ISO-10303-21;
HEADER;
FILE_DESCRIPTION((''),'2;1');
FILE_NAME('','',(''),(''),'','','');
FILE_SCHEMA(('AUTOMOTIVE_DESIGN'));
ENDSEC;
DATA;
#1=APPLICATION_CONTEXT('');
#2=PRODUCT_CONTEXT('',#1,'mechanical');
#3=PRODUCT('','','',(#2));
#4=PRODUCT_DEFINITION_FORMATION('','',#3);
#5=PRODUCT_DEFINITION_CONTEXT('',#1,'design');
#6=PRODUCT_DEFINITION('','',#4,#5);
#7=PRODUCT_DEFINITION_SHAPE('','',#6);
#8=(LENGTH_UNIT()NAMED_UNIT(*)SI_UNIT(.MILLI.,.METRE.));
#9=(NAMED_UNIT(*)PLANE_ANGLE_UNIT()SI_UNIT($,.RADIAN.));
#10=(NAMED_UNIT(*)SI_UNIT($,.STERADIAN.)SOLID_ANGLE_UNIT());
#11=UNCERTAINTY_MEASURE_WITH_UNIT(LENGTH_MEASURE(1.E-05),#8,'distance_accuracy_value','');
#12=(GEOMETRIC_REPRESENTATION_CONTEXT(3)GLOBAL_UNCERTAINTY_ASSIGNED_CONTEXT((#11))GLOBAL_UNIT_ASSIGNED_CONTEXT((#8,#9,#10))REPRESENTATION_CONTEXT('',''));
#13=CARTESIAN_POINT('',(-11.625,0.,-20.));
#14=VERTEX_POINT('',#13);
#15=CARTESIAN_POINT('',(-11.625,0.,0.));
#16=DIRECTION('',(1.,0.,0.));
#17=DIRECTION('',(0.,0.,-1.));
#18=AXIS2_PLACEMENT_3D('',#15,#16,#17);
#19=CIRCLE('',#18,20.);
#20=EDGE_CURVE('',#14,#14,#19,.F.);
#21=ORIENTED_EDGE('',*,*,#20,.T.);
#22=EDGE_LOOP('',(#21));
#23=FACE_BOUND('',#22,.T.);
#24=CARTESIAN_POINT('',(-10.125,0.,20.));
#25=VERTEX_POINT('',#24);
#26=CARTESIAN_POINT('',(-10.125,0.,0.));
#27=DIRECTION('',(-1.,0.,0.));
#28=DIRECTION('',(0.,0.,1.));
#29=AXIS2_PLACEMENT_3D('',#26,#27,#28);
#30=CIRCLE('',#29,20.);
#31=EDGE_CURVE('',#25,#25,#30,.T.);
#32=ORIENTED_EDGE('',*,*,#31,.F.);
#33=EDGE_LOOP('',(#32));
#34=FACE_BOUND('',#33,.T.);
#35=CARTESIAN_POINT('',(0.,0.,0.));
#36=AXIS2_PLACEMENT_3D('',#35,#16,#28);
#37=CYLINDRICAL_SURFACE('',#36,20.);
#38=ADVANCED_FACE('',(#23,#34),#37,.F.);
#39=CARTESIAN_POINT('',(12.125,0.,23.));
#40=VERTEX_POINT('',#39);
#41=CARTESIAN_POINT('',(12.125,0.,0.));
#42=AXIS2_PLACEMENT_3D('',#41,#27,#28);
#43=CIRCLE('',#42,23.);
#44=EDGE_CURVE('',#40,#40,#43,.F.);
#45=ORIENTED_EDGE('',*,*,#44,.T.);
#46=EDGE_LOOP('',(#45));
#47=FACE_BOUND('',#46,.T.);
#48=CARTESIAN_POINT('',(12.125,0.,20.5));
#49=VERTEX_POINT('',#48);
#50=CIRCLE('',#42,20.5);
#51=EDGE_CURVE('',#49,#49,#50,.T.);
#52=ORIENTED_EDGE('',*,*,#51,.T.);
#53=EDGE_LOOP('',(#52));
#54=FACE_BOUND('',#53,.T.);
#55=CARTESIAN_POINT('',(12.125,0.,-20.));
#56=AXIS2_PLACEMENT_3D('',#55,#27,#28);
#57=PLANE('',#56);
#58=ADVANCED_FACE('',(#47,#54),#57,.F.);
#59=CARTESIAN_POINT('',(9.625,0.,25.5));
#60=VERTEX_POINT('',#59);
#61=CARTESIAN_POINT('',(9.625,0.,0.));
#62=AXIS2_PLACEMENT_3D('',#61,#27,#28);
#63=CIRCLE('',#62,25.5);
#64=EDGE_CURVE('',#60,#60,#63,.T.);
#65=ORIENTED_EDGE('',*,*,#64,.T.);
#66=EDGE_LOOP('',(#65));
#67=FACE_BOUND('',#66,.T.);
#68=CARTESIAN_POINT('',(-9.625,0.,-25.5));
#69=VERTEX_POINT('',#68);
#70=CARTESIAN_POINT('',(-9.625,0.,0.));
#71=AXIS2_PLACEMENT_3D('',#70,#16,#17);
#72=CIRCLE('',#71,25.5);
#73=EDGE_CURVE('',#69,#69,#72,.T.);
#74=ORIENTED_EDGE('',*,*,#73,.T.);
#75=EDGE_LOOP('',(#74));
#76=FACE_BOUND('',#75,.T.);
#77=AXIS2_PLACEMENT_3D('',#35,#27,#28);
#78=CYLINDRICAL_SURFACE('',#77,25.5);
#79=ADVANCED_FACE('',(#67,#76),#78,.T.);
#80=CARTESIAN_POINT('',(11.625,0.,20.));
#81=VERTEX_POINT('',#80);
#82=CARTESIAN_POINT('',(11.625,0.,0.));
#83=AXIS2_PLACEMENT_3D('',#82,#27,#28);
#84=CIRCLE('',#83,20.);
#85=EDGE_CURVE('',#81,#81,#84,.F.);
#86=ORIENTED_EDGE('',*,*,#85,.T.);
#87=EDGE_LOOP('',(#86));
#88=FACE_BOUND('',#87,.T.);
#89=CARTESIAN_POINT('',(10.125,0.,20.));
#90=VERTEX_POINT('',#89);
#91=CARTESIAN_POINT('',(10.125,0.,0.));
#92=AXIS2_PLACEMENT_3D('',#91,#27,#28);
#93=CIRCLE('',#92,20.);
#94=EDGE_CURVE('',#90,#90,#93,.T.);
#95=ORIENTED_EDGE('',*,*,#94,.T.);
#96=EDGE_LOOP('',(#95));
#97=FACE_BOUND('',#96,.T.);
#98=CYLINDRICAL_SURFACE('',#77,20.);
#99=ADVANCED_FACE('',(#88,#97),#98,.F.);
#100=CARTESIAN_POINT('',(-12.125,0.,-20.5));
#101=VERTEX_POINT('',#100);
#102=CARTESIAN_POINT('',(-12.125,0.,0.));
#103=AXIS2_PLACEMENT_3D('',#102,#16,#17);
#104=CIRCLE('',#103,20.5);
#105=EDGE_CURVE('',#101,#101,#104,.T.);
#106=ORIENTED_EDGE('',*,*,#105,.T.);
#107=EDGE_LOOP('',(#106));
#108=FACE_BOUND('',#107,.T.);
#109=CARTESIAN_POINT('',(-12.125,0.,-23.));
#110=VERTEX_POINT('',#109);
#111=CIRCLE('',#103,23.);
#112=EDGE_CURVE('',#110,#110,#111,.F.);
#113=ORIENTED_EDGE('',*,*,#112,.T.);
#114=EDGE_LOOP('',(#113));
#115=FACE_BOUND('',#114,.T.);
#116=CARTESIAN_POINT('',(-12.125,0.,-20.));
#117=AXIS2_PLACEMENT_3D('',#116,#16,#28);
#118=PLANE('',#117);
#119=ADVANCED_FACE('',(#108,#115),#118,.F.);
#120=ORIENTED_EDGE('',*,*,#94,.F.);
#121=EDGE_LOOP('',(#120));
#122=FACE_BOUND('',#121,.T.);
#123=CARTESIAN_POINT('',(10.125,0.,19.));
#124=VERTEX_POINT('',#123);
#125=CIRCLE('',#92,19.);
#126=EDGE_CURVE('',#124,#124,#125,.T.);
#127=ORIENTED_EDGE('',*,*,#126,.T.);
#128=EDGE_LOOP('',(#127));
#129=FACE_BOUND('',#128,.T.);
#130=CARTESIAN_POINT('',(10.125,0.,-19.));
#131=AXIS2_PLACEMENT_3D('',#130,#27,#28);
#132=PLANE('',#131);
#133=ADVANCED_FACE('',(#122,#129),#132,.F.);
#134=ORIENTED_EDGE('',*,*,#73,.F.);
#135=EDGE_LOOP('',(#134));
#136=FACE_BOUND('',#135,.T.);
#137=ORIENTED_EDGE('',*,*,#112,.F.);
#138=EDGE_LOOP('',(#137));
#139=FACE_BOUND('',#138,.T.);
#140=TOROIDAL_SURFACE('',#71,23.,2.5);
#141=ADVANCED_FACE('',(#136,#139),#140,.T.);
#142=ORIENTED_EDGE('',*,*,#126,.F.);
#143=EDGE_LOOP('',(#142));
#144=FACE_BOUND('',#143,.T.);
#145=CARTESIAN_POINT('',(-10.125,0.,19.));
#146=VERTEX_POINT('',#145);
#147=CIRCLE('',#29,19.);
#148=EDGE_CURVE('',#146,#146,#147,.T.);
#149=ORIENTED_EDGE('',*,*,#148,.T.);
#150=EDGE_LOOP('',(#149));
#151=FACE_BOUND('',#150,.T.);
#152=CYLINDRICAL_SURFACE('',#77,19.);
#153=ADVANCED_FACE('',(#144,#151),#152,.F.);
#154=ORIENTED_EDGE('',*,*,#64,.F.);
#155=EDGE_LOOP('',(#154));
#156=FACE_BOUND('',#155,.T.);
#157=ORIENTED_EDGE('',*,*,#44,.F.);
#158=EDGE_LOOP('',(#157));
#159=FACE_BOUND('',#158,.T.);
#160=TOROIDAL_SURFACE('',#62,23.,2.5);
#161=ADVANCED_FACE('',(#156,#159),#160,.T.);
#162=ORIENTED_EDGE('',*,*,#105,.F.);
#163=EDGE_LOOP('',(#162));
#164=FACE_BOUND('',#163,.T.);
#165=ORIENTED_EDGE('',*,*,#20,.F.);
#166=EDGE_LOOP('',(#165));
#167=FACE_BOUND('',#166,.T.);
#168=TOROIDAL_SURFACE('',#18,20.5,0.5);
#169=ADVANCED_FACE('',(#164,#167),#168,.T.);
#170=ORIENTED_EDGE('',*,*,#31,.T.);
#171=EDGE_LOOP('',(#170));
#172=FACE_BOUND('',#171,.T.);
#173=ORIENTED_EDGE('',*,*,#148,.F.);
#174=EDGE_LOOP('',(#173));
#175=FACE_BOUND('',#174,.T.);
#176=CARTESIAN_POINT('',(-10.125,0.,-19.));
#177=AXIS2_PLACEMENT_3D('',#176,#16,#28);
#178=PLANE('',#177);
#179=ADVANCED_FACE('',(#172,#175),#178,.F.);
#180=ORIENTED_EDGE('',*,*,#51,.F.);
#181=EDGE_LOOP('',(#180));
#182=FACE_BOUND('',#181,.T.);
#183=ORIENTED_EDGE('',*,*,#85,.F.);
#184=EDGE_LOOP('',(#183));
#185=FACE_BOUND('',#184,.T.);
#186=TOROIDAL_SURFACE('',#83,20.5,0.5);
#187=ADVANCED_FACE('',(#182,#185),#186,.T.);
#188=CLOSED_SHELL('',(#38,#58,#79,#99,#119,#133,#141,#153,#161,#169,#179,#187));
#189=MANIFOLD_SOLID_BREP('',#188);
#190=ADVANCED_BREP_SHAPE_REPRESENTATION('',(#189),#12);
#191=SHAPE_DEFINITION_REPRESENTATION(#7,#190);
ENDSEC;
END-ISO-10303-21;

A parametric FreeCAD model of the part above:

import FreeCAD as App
import Part
import Sketcher


def edges_at(feature, points):
    """Names of the edges that pass closest to the given points."""
    edges = feature.Shape.Edges
    near = lambda p: min(range(len(edges)), key=lambda i: edges[i].distToShape(Part.Vertex(*p))[0])
    return sorted({f"Edge{near(p) + 1}" for p in points})


def add_polygon(sketch, points):
    """Adds a closed chain of lines whose ends are joined by coincident constraints."""
    first, n = sketch.GeometryCount, len(points)
    for a, b in zip(points, points[1:] + points[:1]):
        sketch.addGeometry(Part.LineSegment(App.Vector(*a, 0), App.Vector(*b, 0)), False)
    for i in range(n):
        sketch.addConstraint(Sketcher.Constraint("Coincident", first + i, 2, first + (i + 1) % n, 1))

doc = App.newDocument("Part")
params = doc.addObject("Spreadsheet::Sheet", "Params")
for row, (alias, value) in enumerate([
    ("sketch1_width", "2 mm"),
    ("sketch1_height", "1 mm"),
    ("sketch1_height2", "5.5 mm"),
    ("revolution_angle", "360 deg"),
    ("fillet_radius", "2.5 mm"),
    ("fillet2_radius", "0.5 mm"),
], start=1):
    params.set(f"A{row}", alias)
    params.set(f"B{row}", "=" + value)
    params.setAlias(f"B{row}", alias)

body = doc.addObject("PartDesign::Body", "Body")

# Sketch on XZ plane
sketch1 = doc.addObject("Sketcher::SketchObject", "Sketch")
body.addObject(sketch1)
sketch1.AttachmentSupport = (doc.XZ_Plane, [""])
sketch1.MapMode = "FlatFace"
add_polygon(sketch1, [(0, -19), (10.1, -19), (10.1, -20), (12.1, -20), (12.1, -25.5), (0, -25.5)])  # lines 0-5
sketch1.addConstraint([
    Sketcher.Constraint("Horizontal", 0),
    Sketcher.Constraint("Vertical", 1),
    Sketcher.Constraint("Horizontal", 2),
    Sketcher.Constraint("Vertical", 3),
    Sketcher.Constraint("Horizontal", 4),
    Sketcher.Constraint("Vertical", 5),
    Sketcher.Constraint("PointOnObject", 4, 2, -2),
    Sketcher.Constraint("DistanceX", 2, 1, 2, 2, 2.0),
    Sketcher.Constraint("DistanceY", 1, 2, 1, 1, 1.0),
    Sketcher.Constraint("DistanceY", 3, 2, 3, 1, 5.5),
    Sketcher.Constraint("DistanceY", 0, 2, -1, 1, 19.0),
    Sketcher.Constraint("DistanceX", 0, 1, 0, 2, 10.125),
])
sketch1.setExpression("Constraints[13]", "Params.sketch1_width")
sketch1.setExpression("Constraints[14]", "Params.sketch1_height")
sketch1.setExpression("Constraints[15]", "Params.sketch1_height2")
revolution = doc.addObject("PartDesign::Revolution", "Revolution")
body.addObject(revolution)
revolution.Profile = sketch1
revolution.ReferenceAxis = (sketch1, ["H_Axis"])
revolution.setExpression("Angle", "Params.revolution_angle")
doc.recompute()

mirrored = doc.addObject("PartDesign::Mirrored", "Mirrored")
body.addObject(mirrored)
mirrored.Originals = [revolution]
mirrored.MirrorPlane = (doc.YZ_Plane, [""])
body.Tip = mirrored
doc.recompute()

fillet = doc.addObject("PartDesign::Fillet", "Fillet")
body.addObject(fillet)
fillet.Base = (mirrored, edges_at(mirrored, [(-12.125, 0, 25.5), (12.125, 0, 25.5)]))
fillet.setExpression("Radius", "Params.fillet_radius")
doc.recompute()

fillet2 = doc.addObject("PartDesign::Fillet", "Fillet001")
body.addObject(fillet2)
fillet2.Base = (fillet, edges_at(fillet, [(-12.125, 0, 20), (12.125, 0, 20)]))
fillet2.setExpression("Radius", "Params.fillet2_radius")

doc.recompute()
